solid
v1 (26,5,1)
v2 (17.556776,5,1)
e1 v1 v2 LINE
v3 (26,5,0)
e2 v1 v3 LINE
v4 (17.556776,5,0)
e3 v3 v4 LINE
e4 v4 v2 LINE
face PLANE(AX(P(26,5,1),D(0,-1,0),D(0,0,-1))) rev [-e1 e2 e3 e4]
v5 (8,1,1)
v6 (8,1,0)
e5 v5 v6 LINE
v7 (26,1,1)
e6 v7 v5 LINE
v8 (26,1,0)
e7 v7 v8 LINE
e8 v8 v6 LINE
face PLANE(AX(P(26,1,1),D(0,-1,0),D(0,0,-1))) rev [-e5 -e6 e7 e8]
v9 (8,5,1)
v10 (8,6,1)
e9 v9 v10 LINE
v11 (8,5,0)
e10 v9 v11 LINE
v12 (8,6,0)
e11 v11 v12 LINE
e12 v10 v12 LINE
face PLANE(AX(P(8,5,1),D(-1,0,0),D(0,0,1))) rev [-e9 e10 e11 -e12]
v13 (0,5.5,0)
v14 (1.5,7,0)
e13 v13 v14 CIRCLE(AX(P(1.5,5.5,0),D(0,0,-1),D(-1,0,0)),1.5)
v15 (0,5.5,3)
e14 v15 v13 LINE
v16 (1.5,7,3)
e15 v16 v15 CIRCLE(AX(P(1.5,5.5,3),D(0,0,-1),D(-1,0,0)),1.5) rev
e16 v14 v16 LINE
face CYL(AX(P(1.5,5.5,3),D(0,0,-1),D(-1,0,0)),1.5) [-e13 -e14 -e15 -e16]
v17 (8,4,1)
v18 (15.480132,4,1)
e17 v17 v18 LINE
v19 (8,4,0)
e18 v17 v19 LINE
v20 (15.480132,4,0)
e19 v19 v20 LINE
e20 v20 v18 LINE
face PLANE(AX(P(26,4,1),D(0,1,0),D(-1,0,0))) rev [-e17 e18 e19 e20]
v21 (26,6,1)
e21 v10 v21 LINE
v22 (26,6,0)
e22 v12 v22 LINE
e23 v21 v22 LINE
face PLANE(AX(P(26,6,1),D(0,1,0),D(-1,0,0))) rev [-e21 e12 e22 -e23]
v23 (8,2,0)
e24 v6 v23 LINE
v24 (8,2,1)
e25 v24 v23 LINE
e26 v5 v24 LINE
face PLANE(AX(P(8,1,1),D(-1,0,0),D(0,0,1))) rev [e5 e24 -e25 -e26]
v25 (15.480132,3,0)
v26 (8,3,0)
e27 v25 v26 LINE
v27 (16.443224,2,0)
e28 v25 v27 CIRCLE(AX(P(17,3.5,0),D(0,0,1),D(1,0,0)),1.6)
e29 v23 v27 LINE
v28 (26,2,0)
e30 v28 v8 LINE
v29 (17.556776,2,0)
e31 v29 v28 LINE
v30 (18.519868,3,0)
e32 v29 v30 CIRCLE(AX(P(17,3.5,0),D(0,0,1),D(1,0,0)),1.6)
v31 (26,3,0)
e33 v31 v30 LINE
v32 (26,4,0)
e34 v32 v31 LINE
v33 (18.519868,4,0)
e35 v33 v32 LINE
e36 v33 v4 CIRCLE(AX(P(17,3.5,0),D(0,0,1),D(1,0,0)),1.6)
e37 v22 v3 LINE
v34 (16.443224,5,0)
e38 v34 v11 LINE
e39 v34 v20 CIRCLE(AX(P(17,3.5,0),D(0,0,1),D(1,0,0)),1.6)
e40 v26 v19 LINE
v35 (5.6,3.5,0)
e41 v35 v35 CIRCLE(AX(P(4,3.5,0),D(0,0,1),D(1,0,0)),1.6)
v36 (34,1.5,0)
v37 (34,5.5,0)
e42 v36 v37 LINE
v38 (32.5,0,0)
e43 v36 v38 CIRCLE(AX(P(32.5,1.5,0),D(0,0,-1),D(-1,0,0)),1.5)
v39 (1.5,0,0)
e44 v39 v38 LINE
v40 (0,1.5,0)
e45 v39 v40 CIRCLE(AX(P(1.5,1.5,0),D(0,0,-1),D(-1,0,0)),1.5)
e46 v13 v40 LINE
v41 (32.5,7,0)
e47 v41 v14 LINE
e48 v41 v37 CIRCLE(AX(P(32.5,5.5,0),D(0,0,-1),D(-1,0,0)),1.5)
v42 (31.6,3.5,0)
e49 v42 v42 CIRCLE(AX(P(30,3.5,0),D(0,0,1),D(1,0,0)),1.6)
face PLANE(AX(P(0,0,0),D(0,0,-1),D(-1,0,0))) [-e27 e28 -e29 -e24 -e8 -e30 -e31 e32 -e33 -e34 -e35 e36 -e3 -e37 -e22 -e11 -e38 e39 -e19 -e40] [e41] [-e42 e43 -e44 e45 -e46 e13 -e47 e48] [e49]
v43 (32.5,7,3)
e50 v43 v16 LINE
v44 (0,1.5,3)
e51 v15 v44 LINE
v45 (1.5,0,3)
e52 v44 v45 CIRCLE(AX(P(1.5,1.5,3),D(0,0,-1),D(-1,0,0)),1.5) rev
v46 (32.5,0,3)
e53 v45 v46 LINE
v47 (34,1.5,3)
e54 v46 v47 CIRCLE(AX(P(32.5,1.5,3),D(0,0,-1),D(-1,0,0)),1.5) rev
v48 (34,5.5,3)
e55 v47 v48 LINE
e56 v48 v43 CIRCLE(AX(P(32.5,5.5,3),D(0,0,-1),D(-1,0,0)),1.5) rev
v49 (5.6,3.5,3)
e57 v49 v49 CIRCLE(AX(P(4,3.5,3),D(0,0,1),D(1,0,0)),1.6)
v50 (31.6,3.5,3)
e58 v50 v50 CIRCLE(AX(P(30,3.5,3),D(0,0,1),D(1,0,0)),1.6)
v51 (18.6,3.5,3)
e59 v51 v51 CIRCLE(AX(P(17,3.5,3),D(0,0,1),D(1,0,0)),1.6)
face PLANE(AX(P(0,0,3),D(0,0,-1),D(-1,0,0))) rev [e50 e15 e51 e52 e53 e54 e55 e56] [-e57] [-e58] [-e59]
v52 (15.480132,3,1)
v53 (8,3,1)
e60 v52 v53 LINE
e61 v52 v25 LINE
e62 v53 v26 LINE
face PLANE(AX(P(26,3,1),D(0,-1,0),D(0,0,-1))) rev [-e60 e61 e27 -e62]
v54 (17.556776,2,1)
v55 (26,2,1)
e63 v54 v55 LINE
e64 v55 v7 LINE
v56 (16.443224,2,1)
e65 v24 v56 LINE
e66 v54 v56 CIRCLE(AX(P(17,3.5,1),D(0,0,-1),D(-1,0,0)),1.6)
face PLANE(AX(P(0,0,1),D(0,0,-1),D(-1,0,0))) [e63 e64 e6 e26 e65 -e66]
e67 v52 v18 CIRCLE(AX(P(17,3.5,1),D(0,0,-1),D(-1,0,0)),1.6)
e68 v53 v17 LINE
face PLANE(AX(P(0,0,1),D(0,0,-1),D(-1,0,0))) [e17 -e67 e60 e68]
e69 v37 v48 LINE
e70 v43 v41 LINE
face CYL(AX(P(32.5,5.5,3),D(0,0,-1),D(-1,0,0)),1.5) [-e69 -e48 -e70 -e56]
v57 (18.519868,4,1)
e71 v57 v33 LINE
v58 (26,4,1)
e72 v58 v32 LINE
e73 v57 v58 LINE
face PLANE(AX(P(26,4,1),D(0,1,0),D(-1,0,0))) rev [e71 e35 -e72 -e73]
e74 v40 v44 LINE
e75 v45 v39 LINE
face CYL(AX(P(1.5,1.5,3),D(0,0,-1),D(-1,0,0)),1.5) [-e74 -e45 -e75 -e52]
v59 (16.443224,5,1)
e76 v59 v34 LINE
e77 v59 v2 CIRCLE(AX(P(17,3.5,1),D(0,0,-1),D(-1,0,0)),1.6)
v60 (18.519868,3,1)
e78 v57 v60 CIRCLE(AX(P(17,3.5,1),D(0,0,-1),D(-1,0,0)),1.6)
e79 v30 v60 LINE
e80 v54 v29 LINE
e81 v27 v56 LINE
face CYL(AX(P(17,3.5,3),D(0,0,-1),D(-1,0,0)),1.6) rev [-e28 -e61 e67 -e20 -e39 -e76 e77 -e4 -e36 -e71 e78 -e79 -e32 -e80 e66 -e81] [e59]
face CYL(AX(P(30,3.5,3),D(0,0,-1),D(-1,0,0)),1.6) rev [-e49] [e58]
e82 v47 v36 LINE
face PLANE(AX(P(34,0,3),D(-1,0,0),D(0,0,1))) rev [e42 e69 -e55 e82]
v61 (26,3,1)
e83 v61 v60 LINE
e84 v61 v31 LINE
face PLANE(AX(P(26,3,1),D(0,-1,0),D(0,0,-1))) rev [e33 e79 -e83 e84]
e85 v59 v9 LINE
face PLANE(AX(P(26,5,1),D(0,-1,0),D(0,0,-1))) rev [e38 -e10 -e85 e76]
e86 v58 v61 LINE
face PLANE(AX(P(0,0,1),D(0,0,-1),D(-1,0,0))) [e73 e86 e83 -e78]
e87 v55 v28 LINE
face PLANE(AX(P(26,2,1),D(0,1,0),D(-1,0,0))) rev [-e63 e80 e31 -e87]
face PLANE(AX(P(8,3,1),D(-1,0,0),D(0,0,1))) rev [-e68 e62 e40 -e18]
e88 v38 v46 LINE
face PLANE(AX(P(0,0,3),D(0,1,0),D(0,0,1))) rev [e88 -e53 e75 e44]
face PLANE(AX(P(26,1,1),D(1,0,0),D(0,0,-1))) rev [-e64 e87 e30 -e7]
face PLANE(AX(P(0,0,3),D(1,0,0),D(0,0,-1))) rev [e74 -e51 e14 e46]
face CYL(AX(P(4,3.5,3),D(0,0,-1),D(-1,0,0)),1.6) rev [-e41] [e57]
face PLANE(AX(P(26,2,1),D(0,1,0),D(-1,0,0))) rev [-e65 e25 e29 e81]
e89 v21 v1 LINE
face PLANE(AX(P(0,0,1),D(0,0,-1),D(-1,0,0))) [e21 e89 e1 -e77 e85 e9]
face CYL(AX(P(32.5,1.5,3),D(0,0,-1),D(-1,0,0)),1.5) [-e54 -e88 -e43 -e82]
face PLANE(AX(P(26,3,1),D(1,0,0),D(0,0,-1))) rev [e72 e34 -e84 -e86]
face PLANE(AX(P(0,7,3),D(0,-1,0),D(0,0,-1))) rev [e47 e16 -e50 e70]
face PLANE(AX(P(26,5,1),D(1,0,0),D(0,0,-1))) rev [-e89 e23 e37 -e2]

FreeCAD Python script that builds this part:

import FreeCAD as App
import Part
import Sketcher
from FreeCAD import Vector
Q = App.Units.Quantity


def edges_at(feature, points):
    """Names of the edges that pass closest to the given points."""
    edges = feature.Shape.Edges
    near = lambda p: min(range(len(edges)), key=lambda i: edges[i].distToShape(Part.Vertex(*p))[0])
    return sorted({f"Edge{near(p) + 1}" for p in points})


def add_polygon(sketch, points):
    """Adds a closed chain of lines whose ends are joined by coincident constraints."""
    first, n = sketch.GeometryCount, len(points)
    for a, b in zip(points, points[1:] + points[:1]):
        sketch.addGeometry(Part.LineSegment(App.Vector(*a, 0), App.Vector(*b, 0)), False)
    for i in range(n):
        sketch.addConstraint(Sketcher.Constraint("Coincident", first + i, 2, first + (i + 1) % n, 1))

doc = App.newDocument("Part")
params = doc.addObject("Spreadsheet::Sheet", "Params")
for row, (alias, value) in enumerate([
    ("sketch1_diameter", "3.2 mm"),
    ("sketch1_width", "34 mm"),
    ("sketch1_height", "7 mm"),
    ("pad1_length", "3 mm"),
    ("sketch2_width", "18 mm"),
    ("sketch2_height", "1 mm"),
    ("pocket1_length", "1 mm"),
    ("fillet_radius", "1.5 mm"),
], start=1):
    params.set(f"A{row}", alias)
    params.set(f"B{row}", "=" + value)
    params.setAlias(f"B{row}", alias)

body = doc.addObject("PartDesign::Body", "Body")

# Sketch on XY plane
sketch1 = body.newObject("Sketcher::SketchObject", "Sketch")
sketch1.AttachmentSupport = (doc.getObject("XY_Plane"), [""])
sketch1.MapMode = "FlatFace"
add_polygon(sketch1, [(0, 7), (0, 0), (34, 0), (34, 7)])  # lines 0-3
sketch1.addGeometry(Part.Circle(Vector(4, 3.5, 0), Vector(0, 0, 1), 1.6), False)  # 4
sketch1.addGeometry(Part.Circle(Vector(17, 3.5, 0), Vector(0, 0, 1), 1.6), False)  # 5
sketch1.addGeometry(Part.Circle(Vector(30, 3.5, 0), Vector(0, 0, 1), 1.6), False)  # 6
sketch1.addConstraint(Sketcher.Constraint("Vertical", 0))
sketch1.addConstraint(Sketcher.Constraint("Horizontal", 1))
sketch1.addConstraint(Sketcher.Constraint("Vertical", 2))
sketch1.addConstraint(Sketcher.Constraint("Horizontal", 3))
sketch1.addConstraint(Sketcher.Constraint("Coincident", 0, 2, -1, 1))
sketch1.addConstraint(Sketcher.Constraint("Equal", 4, 5))
sketch1.addConstraint(Sketcher.Constraint("Equal", 5, 6))
sketch1.addConstraint(Sketcher.Constraint("Horizontal", 4, 3, 5, 3))
sketch1.addConstraint(Sketcher.Constraint("Horizontal", 5, 3, 6, 3))
sketch1.addConstraint(Sketcher.Constraint("Diameter", 4, Q("3.2 mm")))
sketch1.addConstraint(Sketcher.Constraint("DistanceX", 1, 1, 1, 2, Q("34 mm")))
sketch1.addConstraint(Sketcher.Constraint("DistanceY", 0, 2, 0, 1, Q("7 mm")))
sketch1.addConstraint(Sketcher.Constraint("DistanceX", -1, 1, 4, 3, Q("4 mm")))
sketch1.addConstraint(Sketcher.Constraint("DistanceX", -1, 1, 5, 3, Q("17 mm")))
sketch1.addConstraint(Sketcher.Constraint("DistanceX", -1, 1, 6, 3, Q("30 mm")))
sketch1.addConstraint(Sketcher.Constraint("DistanceY", -1, 1, 4, 3, Q("3.5 mm")))
sketch1.setExpression("Constraints[13]", "Params.sketch1_diameter")
sketch1.setExpression("Constraints[14]", "Params.sketch1_width")
sketch1.setExpression("Constraints[15]", "Params.sketch1_height")
pad1 = body.newObject("PartDesign::Pad", "Pad")
pad1.Profile = sketch1
pad1.setExpression("Length", "Params.pad1_length")

# Sketch on XY plane
sketch2 = body.newObject("Sketcher::SketchObject", "Sketch001")
sketch2.AttachmentSupport = (doc.getObject("XY_Plane"), [""])
sketch2.MapMode = "FlatFace"
add_polygon(sketch2, [(26, 8), (26, 7), (8, 7), (8, 8)])  # lines 0-3
add_polygon(sketch2, [(26, 6), (26, 5), (8, 5), (8, 6)])  # lines 4-7
add_polygon(sketch2, [(26, 4), (26, 3), (8, 3), (8, 4)])  # lines 8-11
add_polygon(sketch2, [(26, 2), (26, 1), (8, 1), (8, 2)])  # lines 12-15
add_polygon(sketch2, [(26, 0), (26, -1), (8, -1), (8, 0)])  # lines 16-19
sketch2.addConstraint(Sketcher.Constraint("Vertical", 0))
sketch2.addConstraint(Sketcher.Constraint("Horizontal", 1))
sketch2.addConstraint(Sketcher.Constraint("Vertical", 2))
sketch2.addConstraint(Sketcher.Constraint("Horizontal", 3))
sketch2.addConstraint(Sketcher.Constraint("Vertical", 4))
sketch2.addConstraint(Sketcher.Constraint("Horizontal", 5))
sketch2.addConstraint(Sketcher.Constraint("Vertical", 6))
sketch2.addConstraint(Sketcher.Constraint("Horizontal", 7))
sketch2.addConstraint(Sketcher.Constraint("Vertical", 8))
sketch2.addConstraint(Sketcher.Constraint("Horizontal", 9))
sketch2.addConstraint(Sketcher.Constraint("Vertical", 10))
sketch2.addConstraint(Sketcher.Constraint("Horizontal", 11))
sketch2.addConstraint(Sketcher.Constraint("Vertical", 12))
sketch2.addConstraint(Sketcher.Constraint("Horizontal", 13))
sketch2.addConstraint(Sketcher.Constraint("Vertical", 14))
sketch2.addConstraint(Sketcher.Constraint("Horizontal", 15))
sketch2.addConstraint(Sketcher.Constraint("Vertical", 16))
sketch2.addConstraint(Sketcher.Constraint("Horizontal", 17))
sketch2.addConstraint(Sketcher.Constraint("Vertical", 18))
sketch2.addConstraint(Sketcher.Constraint("Horizontal", 19))
sketch2.addConstraint(Sketcher.Constraint("Symmetric", 12, 2, 16, 2, -1))
sketch2.addConstraint(Sketcher.Constraint("PointOnObject", 18, 2, -1))
sketch2.addConstraint(Sketcher.Constraint("Vertical", 3, 2, 4, 2))
sketch2.addConstraint(Sketcher.Constraint("Vertical", 2, 2, 5, 2))
sketch2.addConstraint(Sketcher.Constraint("Vertical", 7, 2, 8, 2))
sketch2.addConstraint(Sketcher.Constraint("Vertical", 6, 2, 9, 2))
sketch2.addConstraint(Sketcher.Constraint("Vertical", 11, 2, 12, 2))
sketch2.addConstraint(Sketcher.Constraint("Vertical", 10, 2, 13, 2))
sketch2.addConstraint(Sketcher.Constraint("Vertical", 14, 2, 17, 2))
sketch2.addConstraint(Sketcher.Constraint("Equal", 2, 4))
sketch2.addConstraint(Sketcher.Constraint("Equal", 6, 8))
sketch2.addConstraint(Sketcher.Constraint("Equal", 10, 12))
sketch2.addConstraint(Sketcher.Constraint("Equal", 14, 16))
sketch2.addConstraint(Sketcher.Constraint("DistanceX", 1, 2, 1, 1, Q("18 mm")))
sketch2.addConstraint(Sketcher.Constraint("DistanceY", 0, 2, 0, 1, Q("1 mm")))
sketch2.addConstraint(Sketcher.Constraint("DistanceX", -1, 1, 0, 2, Q("26 mm")))
sketch2.addConstraint(Sketcher.Constraint("DistanceY", -1, 1, 0, 2, Q("7 mm")))
sketch2.addConstraint(Sketcher.Constraint("DistanceY", -1, 1, 4, 2, Q("5 mm")))
sketch2.addConstraint(Sketcher.Constraint("DistanceY", -1, 1, 8, 2, Q("3 mm")))
sketch2.setExpression("Constraints[53]", "Params.sketch2_width")
sketch2.setExpression("Constraints[54]", "Params.sketch2_height")
pocket1 = body.newObject("PartDesign::Pocket", "Pocket")
pocket1.Profile = sketch2
pocket1.setExpression("Length", "Params.pocket1_length")
pocket1.Reversed = True
doc.recompute()

fillet = body.newObject("PartDesign::Fillet", "Fillet")
fillet.Base = (pocket1, edges_at(pocket1, [
    (0, 7, 1.5),
    (34, 7, 1.5),
    (34, 0, 1.5),
    (0, 0, 1.5),
]))
fillet.setExpression("Radius", "Params.fillet_radius")

doc.recompute()
